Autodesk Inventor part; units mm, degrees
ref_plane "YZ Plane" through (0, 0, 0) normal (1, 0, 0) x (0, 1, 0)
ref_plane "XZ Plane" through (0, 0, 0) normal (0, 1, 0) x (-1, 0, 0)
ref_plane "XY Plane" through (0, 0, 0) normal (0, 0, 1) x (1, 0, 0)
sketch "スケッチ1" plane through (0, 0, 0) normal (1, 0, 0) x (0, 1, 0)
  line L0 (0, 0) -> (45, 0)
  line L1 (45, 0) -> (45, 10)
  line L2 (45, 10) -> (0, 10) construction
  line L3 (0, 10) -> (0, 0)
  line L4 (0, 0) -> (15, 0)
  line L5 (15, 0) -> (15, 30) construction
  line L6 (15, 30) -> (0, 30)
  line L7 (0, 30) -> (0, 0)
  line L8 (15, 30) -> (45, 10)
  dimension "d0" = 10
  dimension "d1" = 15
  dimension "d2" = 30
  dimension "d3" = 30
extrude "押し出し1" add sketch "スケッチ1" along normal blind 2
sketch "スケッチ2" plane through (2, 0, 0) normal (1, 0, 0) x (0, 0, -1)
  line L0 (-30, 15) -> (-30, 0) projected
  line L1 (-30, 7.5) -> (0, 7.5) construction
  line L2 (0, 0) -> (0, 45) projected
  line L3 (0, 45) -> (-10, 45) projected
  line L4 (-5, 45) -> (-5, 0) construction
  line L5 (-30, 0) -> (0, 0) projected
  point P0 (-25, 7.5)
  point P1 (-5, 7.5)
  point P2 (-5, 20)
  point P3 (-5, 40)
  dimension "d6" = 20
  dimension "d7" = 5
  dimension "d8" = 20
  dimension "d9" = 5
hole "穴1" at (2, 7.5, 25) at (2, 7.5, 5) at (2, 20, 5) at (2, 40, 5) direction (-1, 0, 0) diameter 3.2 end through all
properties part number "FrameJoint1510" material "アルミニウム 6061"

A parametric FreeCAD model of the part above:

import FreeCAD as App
import Part
import Sketcher
from FreeCAD import Vector

doc = App.newDocument("Part")
params = doc.addObject("Spreadsheet::Sheet", "Params")
for row, (alias, value) in enumerate([
    ("sketch1_width", "15 mm"),
    ("sketch1_height", "30 mm"),
    ("sketch1_height2", "10 mm"),
    ("pad1_length", "2 mm"),
    ("sketch2_diameter", "3.2 mm"),
    ("hole_diameter", "3.2 mm"),
], start=1):
    params.set(f"A{row}", alias)
    params.set(f"B{row}", "=" + value)
    params.setAlias(f"B{row}", alias)

body = doc.addObject("PartDesign::Body", "Body")

# Sketch on YZ plane
sketch1 = body.newObject("Sketcher::SketchObject", "Sketch")
sketch1.AttachmentSupport = (doc.getObject("YZ_Plane"), [""])
sketch1.MapMode = "FlatFace"
sketch1.addGeometry([
    Part.LineSegment(Vector(0, 30, 0), Vector(0, 0, 0)),  # 0
    Part.LineSegment(Vector(0, 0, 0), Vector(45, 0, 0)),  # 1
    Part.LineSegment(Vector(45, 0, 0), Vector(45, 10, 0)),  # 2
    Part.LineSegment(Vector(45, 10, 0), Vector(15, 30, 0)),  # 3
    Part.LineSegment(Vector(15, 30, 0), Vector(0, 30, 0)),  # 4
], False)
sketch1.addConstraint([
    Sketcher.Constraint("Coincident", 0, 2, 1, 1),
    Sketcher.Constraint("Coincident", 1, 2, 2, 1),
    Sketcher.Constraint("Coincident", 2, 2, 3, 1),
    Sketcher.Constraint("Coincident", 3, 2, 4, 1),
    Sketcher.Constraint("Coincident", 4, 2, 0, 1),
    Sketcher.Constraint("Vertical", 0),
    Sketcher.Constraint("Horizontal", 1),
    Sketcher.Constraint("Vertical", 2),
    Sketcher.Constraint("Horizontal", 4),
    Sketcher.Constraint("Coincident", 0, 2, -1, 1),
    Sketcher.Constraint("DistanceX", 4, 2, 4, 1, 15.0),
    Sketcher.Constraint("DistanceY", 0, 2, 0, 1, 30.0),
    Sketcher.Constraint("DistanceY", 2, 1, 2, 2, 10.0),
    Sketcher.Constraint("DistanceX", 3, 2, 2, 2, 30.0),
])
sketch1.setExpression("Constraints[10]", "Params.sketch1_width")
sketch1.setExpression("Constraints[11]", "Params.sketch1_height")
sketch1.setExpression("Constraints[12]", "Params.sketch1_height2")
pad1 = body.newObject("PartDesign::Pad", "Pad")
pad1.Profile = sketch1
pad1.setExpression("Length", "Params.pad1_length")

# Sketch on YZ plane
sketch2 = body.newObject("Sketcher::SketchObject", "Sketch001")
sketch2.AttachmentSupport = (doc.getObject("YZ_Plane"), [""])
sketch2.MapMode = "FlatFace"
sketch2.AttachmentOffset = App.Placement(Vector(0, 0, 2), App.Rotation())
sketch2.addGeometry([
    Part.Circle(Vector(7.5, 25, 0), Vector(0, 0, 1), 1.6),
    Part.Circle(Vector(7.5, 5, 0), Vector(0, 0, 1), 1.6),
    Part.Circle(Vector(20, 5, 0), Vector(0, 0, 1), 1.6),
    Part.Circle(Vector(40, 5, 0), Vector(0, 0, 1), 1.6),
], False)
sketch2.addConstraint([
    Sketcher.Constraint("Equal", 0, 1),
    Sketcher.Constraint("Equal", 1, 2),
    Sketcher.Constraint("Equal", 2, 3),
    Sketcher.Constraint("Horizontal", 1, 3, 2, 3),
    Sketcher.Constraint("Horizontal", 2, 3, 3, 3),
    Sketcher.Constraint("Vertical", 0, 3, 1, 3),
    Sketcher.Constraint("Diameter", 0, 3.2),
    Sketcher.Constraint("DistanceY", -1, 1, 0, 3, 25.0),
    Sketcher.Constraint("DistanceY", -1, 1, 1, 3, 5.0),
    Sketcher.Constraint("DistanceX", -1, 1, 2, 3, 20.0),
    Sketcher.Constraint("DistanceX", -1, 1, 3, 3, 40.0),
    Sketcher.Constraint("DistanceX", -1, 1, 0, 3, 7.5),
])
sketch2.setExpression("Constraints[6]", "Params.sketch2_diameter")
doc.recompute()
hole = body.newObject("PartDesign::Hole", "Hole")
hole.Profile = sketch2
hole.ThreadType = "None"
hole.setExpression("Diameter", "Params.hole_diameter")
hole.DepthType = "ThroughAll"

doc.recompute()
